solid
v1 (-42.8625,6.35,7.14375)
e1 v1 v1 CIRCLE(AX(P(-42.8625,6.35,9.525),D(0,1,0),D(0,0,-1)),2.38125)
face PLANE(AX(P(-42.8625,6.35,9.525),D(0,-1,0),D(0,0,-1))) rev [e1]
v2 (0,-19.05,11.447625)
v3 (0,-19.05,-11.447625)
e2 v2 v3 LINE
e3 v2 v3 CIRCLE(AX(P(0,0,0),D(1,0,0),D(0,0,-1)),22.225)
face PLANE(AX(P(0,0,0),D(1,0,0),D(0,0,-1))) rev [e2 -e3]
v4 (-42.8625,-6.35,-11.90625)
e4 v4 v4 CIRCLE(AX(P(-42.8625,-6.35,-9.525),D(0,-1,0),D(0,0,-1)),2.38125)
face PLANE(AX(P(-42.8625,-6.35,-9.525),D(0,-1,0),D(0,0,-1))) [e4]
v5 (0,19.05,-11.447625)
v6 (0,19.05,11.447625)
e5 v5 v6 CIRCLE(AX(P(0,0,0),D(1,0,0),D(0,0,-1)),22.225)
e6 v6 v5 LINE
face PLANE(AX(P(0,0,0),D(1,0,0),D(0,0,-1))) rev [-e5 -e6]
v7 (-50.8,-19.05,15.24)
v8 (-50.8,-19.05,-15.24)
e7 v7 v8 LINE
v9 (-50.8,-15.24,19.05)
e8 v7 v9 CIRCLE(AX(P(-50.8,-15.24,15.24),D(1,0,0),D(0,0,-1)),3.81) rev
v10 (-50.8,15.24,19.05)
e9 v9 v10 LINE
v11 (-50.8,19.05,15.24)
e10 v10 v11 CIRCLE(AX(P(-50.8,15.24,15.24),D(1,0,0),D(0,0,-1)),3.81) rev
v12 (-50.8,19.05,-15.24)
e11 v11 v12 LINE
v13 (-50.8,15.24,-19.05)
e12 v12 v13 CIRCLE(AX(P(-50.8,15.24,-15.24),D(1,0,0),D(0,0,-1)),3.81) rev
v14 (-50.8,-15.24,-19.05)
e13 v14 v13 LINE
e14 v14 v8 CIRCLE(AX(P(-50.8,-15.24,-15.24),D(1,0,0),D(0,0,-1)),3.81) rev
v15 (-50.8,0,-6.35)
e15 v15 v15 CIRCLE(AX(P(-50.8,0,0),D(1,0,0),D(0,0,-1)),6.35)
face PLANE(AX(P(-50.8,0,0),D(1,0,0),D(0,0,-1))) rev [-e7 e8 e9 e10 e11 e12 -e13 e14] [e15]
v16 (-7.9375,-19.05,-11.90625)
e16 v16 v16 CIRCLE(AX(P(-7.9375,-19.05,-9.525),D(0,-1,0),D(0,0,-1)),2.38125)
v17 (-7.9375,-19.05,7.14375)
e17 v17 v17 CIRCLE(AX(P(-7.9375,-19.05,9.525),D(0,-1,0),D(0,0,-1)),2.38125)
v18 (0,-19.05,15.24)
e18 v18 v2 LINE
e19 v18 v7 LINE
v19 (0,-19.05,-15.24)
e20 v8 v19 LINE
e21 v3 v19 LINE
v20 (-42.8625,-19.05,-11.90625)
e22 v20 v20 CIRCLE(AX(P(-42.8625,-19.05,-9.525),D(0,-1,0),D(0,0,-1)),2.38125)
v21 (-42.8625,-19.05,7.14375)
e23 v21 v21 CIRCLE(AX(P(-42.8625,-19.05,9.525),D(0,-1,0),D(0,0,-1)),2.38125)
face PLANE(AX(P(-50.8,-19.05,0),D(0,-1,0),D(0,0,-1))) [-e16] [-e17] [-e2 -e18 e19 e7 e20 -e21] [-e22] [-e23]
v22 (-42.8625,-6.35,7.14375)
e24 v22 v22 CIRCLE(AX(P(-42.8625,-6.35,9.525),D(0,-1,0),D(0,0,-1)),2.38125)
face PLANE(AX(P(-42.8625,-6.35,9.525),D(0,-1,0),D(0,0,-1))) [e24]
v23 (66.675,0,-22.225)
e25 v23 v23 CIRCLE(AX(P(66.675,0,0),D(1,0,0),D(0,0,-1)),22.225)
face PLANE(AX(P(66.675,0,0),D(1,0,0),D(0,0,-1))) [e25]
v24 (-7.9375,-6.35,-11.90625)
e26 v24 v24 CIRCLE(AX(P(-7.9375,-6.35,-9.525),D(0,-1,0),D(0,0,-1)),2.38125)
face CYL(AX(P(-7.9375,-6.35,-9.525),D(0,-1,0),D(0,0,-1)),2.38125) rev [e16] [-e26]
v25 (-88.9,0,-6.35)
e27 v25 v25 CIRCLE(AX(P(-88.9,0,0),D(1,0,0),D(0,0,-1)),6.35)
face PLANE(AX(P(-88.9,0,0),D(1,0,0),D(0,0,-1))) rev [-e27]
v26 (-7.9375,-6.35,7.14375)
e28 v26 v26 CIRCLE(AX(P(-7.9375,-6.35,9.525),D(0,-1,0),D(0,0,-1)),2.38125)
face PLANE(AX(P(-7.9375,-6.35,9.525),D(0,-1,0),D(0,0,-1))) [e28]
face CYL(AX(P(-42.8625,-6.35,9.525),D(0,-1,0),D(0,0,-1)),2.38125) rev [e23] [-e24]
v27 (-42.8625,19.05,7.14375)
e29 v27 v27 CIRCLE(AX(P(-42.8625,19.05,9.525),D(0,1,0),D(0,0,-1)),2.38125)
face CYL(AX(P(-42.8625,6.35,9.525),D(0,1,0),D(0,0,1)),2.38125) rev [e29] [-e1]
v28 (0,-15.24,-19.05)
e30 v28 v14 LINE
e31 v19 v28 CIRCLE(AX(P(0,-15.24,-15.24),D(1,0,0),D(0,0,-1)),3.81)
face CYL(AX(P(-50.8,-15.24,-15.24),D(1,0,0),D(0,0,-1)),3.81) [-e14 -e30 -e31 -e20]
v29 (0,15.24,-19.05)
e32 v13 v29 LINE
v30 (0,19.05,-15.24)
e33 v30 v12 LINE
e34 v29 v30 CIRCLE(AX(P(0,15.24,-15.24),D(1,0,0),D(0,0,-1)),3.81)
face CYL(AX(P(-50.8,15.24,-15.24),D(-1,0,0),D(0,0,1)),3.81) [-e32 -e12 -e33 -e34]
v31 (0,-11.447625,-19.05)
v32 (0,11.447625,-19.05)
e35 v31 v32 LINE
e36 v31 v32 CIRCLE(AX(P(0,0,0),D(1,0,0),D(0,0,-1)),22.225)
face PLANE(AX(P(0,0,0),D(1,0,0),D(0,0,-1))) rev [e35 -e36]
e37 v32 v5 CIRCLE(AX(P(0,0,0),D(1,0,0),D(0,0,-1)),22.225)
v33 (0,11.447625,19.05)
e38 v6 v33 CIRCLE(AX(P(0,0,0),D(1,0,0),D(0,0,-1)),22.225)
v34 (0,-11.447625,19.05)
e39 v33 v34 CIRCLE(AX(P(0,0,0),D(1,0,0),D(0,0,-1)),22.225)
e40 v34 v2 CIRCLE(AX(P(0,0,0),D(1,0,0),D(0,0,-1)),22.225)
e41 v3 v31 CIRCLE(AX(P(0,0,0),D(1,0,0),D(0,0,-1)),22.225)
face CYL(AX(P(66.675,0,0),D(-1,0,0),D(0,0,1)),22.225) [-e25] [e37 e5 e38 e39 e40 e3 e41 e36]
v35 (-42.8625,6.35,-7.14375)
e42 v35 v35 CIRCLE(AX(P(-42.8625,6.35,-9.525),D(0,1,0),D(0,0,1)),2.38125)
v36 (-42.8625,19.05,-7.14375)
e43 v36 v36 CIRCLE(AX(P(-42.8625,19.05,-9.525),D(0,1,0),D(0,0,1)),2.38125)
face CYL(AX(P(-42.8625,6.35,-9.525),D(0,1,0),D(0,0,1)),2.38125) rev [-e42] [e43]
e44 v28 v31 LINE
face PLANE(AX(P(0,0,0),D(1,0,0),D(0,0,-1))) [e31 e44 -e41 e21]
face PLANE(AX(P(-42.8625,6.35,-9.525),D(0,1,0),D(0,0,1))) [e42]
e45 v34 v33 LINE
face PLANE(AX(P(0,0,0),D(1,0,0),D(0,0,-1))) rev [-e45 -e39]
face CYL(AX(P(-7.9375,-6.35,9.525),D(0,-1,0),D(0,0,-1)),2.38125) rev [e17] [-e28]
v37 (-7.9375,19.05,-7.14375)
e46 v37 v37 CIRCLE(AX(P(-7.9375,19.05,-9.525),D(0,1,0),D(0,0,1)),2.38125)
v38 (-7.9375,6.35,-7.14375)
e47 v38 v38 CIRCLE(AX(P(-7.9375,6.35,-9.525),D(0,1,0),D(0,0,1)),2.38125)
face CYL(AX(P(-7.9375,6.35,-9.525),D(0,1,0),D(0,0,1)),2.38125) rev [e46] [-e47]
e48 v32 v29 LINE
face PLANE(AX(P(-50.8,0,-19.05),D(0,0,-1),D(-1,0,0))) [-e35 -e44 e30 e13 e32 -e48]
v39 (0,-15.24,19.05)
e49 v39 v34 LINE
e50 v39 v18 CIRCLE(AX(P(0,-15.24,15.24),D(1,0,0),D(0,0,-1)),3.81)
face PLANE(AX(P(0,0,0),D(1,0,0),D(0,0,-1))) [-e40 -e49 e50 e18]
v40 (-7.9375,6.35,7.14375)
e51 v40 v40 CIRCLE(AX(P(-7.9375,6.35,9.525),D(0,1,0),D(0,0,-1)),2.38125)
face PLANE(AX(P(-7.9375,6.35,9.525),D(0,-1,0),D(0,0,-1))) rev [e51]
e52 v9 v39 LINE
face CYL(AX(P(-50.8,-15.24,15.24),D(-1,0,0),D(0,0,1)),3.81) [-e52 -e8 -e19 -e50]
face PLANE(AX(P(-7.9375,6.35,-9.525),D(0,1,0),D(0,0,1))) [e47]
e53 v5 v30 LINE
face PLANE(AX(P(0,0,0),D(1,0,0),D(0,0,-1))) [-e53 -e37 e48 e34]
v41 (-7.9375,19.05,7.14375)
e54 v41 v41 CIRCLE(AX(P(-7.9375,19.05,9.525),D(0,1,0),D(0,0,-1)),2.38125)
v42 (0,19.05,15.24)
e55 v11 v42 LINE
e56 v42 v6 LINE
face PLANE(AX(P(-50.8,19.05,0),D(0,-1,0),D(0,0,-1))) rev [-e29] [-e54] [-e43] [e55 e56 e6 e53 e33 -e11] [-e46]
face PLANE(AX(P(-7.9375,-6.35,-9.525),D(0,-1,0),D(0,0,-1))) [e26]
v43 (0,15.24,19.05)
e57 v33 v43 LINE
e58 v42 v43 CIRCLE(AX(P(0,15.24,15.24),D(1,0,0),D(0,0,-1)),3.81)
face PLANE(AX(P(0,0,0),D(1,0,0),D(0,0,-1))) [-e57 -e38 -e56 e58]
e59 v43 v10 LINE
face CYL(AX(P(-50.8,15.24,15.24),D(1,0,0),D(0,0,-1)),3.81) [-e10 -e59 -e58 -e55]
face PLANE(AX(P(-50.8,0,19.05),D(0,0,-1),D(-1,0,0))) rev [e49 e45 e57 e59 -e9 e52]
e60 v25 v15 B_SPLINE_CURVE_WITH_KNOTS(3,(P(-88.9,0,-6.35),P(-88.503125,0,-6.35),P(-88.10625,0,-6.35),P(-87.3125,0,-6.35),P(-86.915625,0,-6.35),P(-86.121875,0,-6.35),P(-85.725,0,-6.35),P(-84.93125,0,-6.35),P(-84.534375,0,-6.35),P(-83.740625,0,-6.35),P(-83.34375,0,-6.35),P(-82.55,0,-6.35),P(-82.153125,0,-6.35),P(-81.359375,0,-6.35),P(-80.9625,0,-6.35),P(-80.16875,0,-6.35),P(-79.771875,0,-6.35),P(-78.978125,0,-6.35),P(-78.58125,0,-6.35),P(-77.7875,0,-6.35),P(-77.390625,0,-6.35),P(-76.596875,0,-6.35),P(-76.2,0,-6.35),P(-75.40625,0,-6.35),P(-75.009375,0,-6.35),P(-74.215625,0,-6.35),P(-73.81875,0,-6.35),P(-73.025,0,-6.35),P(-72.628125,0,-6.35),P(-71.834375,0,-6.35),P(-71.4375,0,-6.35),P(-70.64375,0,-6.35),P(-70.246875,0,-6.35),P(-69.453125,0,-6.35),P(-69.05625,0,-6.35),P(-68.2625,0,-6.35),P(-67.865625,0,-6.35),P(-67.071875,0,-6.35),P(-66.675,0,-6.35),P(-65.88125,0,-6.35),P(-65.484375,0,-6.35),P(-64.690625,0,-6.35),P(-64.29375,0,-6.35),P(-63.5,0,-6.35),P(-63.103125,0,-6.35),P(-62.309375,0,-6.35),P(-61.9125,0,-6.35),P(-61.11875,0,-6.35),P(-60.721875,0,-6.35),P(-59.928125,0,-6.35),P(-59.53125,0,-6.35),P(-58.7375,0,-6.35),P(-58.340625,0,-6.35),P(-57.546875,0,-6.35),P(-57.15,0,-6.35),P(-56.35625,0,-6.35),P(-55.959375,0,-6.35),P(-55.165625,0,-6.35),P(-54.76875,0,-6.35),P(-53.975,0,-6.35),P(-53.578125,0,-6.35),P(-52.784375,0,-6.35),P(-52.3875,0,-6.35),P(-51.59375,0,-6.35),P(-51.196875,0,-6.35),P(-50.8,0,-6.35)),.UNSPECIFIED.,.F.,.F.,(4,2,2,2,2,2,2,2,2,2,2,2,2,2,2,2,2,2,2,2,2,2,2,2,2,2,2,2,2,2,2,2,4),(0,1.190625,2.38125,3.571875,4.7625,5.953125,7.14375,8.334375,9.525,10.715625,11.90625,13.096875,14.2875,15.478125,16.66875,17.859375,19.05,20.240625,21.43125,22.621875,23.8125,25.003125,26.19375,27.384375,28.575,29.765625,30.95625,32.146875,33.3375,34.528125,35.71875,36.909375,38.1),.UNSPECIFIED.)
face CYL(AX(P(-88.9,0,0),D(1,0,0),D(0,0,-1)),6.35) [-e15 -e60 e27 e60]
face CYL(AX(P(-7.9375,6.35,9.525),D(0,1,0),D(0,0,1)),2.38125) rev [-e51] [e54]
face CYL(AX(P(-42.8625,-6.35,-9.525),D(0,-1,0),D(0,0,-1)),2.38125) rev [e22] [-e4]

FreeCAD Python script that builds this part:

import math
import FreeCAD as App
import Part
import Sketcher
Q = App.Units.Quantity


def edges_at(feature, points):
    """Names of the edges that pass closest to the given points."""
    edges = feature.Shape.Edges
    near = lambda p: min(range(len(edges)), key=lambda i: edges[i].distToShape(Part.Vertex(*p))[0])
    return sorted({f"Edge{near(p) + 1}" for p in points})

doc = App.newDocument("Part")
params = doc.addObject("Spreadsheet::Sheet", "Params")
for row, (alias, value) in enumerate([
    ("sketch1_radius", "0.875 in"),
    ("pad1_length", "2.625 in"),
    ("sketch2_width", "1.5 in"),
    ("pad2_length", "2 in"),
    ("sketch3_diameter", "0.5 in"),
    ("pad3_length", "1.5 in"),
    ("sketch4_diameter", "0.1875 in"),
    ("pocket1_length", "0.5 in"),
    ("sketch5_diameter", "0.1875 in"),
    ("pocket2_length", "0.5 in"),
    ("fillet_radius", "0.15 in"),
], start=1):
    params.set(f"A{row}", alias)
    params.set(f"B{row}", "=" + value)
    params.setAlias(f"B{row}", alias)

body = doc.addObject("PartDesign::Body", "Body")

# Sketch on YZ plane
sketch1 = body.newObject("Sketcher::SketchObject", "Sketch")
sketch1.AttachmentSupport = (doc.getObject("YZ_Plane"), [""])
sketch1.MapMode = "FlatFace"
sketch1.addGeometry([
    Part.ArcOfCircle(Part.Circle(App.Vector(0, 0, 0), App.Vector(0, 0, 1), 22.225), math.radians(-90), math.radians(-58.997281)),  # 0
    Part.ArcOfCircle(Part.Circle(App.Vector(0, 0, 0), App.Vector(0, 0, 1), 22.225), math.radians(-58.997281), math.radians(-31.002719)),  # 1
    Part.ArcOfCircle(Part.Circle(App.Vector(0, 0, 0), App.Vector(0, 0, 1), 22.225), math.radians(-31.002719), math.radians(31.002719)),  # 2
    Part.ArcOfCircle(Part.Circle(App.Vector(0, 0, 0), App.Vector(0, 0, 1), 22.225), math.radians(31.002719), math.radians(58.997281)),  # 3
    Part.ArcOfCircle(Part.Circle(App.Vector(0, 0, 0), App.Vector(0, 0, 1), 22.225), math.radians(58.997281), math.radians(121.002719)),  # 4
    Part.ArcOfCircle(Part.Circle(App.Vector(0, 0, 0), App.Vector(0, 0, 1), 22.225), math.radians(121.002719), math.radians(148.997281)),  # 5
    Part.ArcOfCircle(Part.Circle(App.Vector(0, 0, 0), App.Vector(0, 0, 1), 22.225), math.radians(148.997281), math.radians(211.002719)),  # 6
    Part.ArcOfCircle(Part.Circle(App.Vector(0, 0, 0), App.Vector(0, 0, 1), 22.225), math.radians(-148.997281), math.radians(-121.002719)),  # 7
    Part.ArcOfCircle(Part.Circle(App.Vector(0, 0, 0), App.Vector(0, 0, 1), 22.225), math.radians(-121.002719), math.radians(-90)),  # 8
], False)
sketch1.addConstraint([
    Sketcher.Constraint("Tangent", 0, 2, 1, 1),
    Sketcher.Constraint("Tangent", 1, 2, 2, 1),
    Sketcher.Constraint("Tangent", 2, 2, 3, 1),
    Sketcher.Constraint("Tangent", 3, 2, 4, 1),
    Sketcher.Constraint("Tangent", 4, 2, 5, 1),
    Sketcher.Constraint("Tangent", 5, 2, 6, 1),
    Sketcher.Constraint("Tangent", 6, 2, 7, 1),
    Sketcher.Constraint("Tangent", 7, 2, 8, 1),
    Sketcher.Constraint("Tangent", 8, 2, 0, 1),
    Sketcher.Constraint("Coincident", 0, 3, -1, 1),
    Sketcher.Constraint("Coincident", 2, 3, -1, 1),
    Sketcher.Constraint("Coincident", 4, 3, -1, 1),
    Sketcher.Constraint("Coincident", 6, 3, -1, 1),
    Sketcher.Constraint("PointOnObject", 8, 2, -2),
    Sketcher.Constraint("Horizontal", 3, 2, 4, 2),
    Sketcher.Constraint("Horizontal", 2, 2, 5, 2),
    Sketcher.Constraint("Horizontal", 1, 2, 6, 2),
    Sketcher.Constraint("Horizontal", 0, 2, 7, 2),
    Sketcher.Constraint("Vertical", 1, 2, 2, 2),
    Sketcher.Constraint("Vertical", 0, 2, 3, 2),
    Sketcher.Constraint("Radius", 0, Q("0.875 in")),
    Sketcher.Constraint("DistanceY", 0, 2, -1, 1, Q("0.75 in")),
    Sketcher.Constraint("DistanceX", -1, 1, 1, 2, Q("0.75 in")),
])
sketch1.setExpression("Constraints[20]", "Params.sketch1_radius")
pad1 = body.newObject("PartDesign::Pad", "Pad")
pad1.Profile = sketch1
pad1.setExpression("Length", "Params.pad1_length")

# Sketch on YZ plane
sketch2 = body.newObject("Sketcher::SketchObject", "Sketch001")
sketch2.AttachmentSupport = (doc.getObject("YZ_Plane"), [""])
sketch2.MapMode = "FlatFace"
sketch2.addGeometry([
    Part.LineSegment(App.Vector(19.05, 19.05, 0), App.Vector(-19.05, 19.05, 0)),
    Part.LineSegment(App.Vector(-19.05, 19.05, 0), App.Vector(-19.05, -19.05, 0)),
    Part.LineSegment(App.Vector(-19.05, -19.05, 0), App.Vector(19.05, -19.05, 0)),
    Part.LineSegment(App.Vector(19.05, -19.05, 0), App.Vector(19.05, 19.05, 0)),
], False)
sketch2.addConstraint([
    Sketcher.Constraint("Coincident", 0, 2, 1, 1),
    Sketcher.Constraint("Coincident", 1, 2, 2, 1),
    Sketcher.Constraint("Coincident", 2, 2, 3, 1),
    Sketcher.Constraint("Coincident", 3, 2, 0, 1),
    Sketcher.Constraint("Horizontal", 0),
    Sketcher.Constraint("Vertical", 1),
    Sketcher.Constraint("Horizontal", 2),
    Sketcher.Constraint("Vertical", 3),
    Sketcher.Constraint("Symmetric", 0, 2, 2, 2, -1, 1),
    Sketcher.Constraint("Equal", 2, 1),
    Sketcher.Constraint("DistanceX", 0, 2, 0, 1, Q("1.5 in")),
])
sketch2.setExpression("Constraints[10]", "Params.sketch2_width")
pad2 = body.newObject("PartDesign::Pad", "Pad001")
pad2.Profile = sketch2
pad2.setExpression("Length", "Params.pad2_length")
pad2.Reversed = True

# Sketch on YZ plane
sketch3 = body.newObject("Sketcher::SketchObject", "Sketch002")
sketch3.AttachmentSupport = (doc.getObject("YZ_Plane"), [""])
sketch3.MapMode = "FlatFace"
sketch3.AttachmentOffset = App.Placement(App.Vector(0, 0, -2 * 25.4), App.Rotation())
sketch3.addGeometry(Part.Circle(App.Vector(0, 0, 0), App.Vector(0, 0, 1), 6.35), False)
sketch3.addConstraint([
    Sketcher.Constraint("Coincident", 0, 3, -1, 1),
    Sketcher.Constraint("Diameter", 0, Q("0.5 in")),
])
sketch3.setExpression("Constraints[1]", "Params.sketch3_diameter")
pad3 = body.newObject("PartDesign::Pad", "Pad002")
pad3.Profile = sketch3
pad3.setExpression("Length", "Params.pad3_length")
pad3.Reversed = True

# Sketch on XZ plane
sketch4 = body.newObject("Sketcher::SketchObject", "Sketch003")
sketch4.AttachmentSupport = (doc.getObject("XZ_Plane"), [""])
sketch4.MapMode = "FlatFace"
sketch4.AttachmentOffset = App.Placement(App.Vector(0, 0, -0.75 * 25.4), App.Rotation())
sketch4.addGeometry([
    Part.Circle(App.Vector(-42.8625, -9.525, 0), App.Vector(0, 0, 1), 2.38125),
    Part.Circle(App.Vector(-7.9375, -9.525, 0), App.Vector(0, 0, 1), 2.38125),
    Part.Circle(App.Vector(-7.9375, 9.525, 0), App.Vector(0, 0, 1), 2.38125),
    Part.Circle(App.Vector(-42.8625, 9.525, 0), App.Vector(0, 0, 1), 2.38125),
], False)
sketch4.addConstraint([
    Sketcher.Constraint("Equal", 0, 1),
    Sketcher.Constraint("Equal", 1, 2),
    Sketcher.Constraint("Equal", 2, 3),
    Sketcher.Constraint("Symmetric", 1, 3, 2, 3, -1),
    Sketcher.Constraint("Symmetric", 0, 3, 3, 3, -1),
    Sketcher.Constraint("Horizontal", 0, 3, 1, 3),
    Sketcher.Constraint("Diameter", 0, Q("0.1875 in")),
    Sketcher.Constraint("DistanceY", 1, 3, 2, 3, Q("0.75 in")),
    Sketcher.Constraint("DistanceX", 0, 3, -1, 1, Q("1.6875 in")),
    Sketcher.Constraint("DistanceX", 1, 3, -1, 1, Q("0.3125 in")),
])
sketch4.setExpression("Constraints[6]", "Params.sketch4_diameter")
pocket1 = body.newObject("PartDesign::Pocket", "Pocket")
pocket1.Profile = sketch4
pocket1.setExpression("Length", "Params.pocket1_length")
pocket1.Reversed = True

# Sketch on XZ plane
sketch5 = body.newObject("Sketcher::SketchObject", "Sketch004")
sketch5.AttachmentSupport = (doc.getObject("XZ_Plane"), [""])
sketch5.MapMode = "FlatFace"
sketch5.AttachmentOffset = App.Placement(App.Vector(0, 0, 0.25 * 25.4), App.Rotation())
sketch5.addGeometry([
    Part.Circle(App.Vector(-42.8625, -9.525, 0), App.Vector(0, 0, 1), 2.38125),
    Part.Circle(App.Vector(-7.9375, -9.525, 0), App.Vector(0, 0, 1), 2.38125),
    Part.Circle(App.Vector(-7.9375, 9.525, 0), App.Vector(0, 0, 1), 2.38125),
    Part.Circle(App.Vector(-42.8625, 9.525, 0), App.Vector(0, 0, 1), 2.38125),
], False)
sketch5.addConstraint([
    Sketcher.Constraint("Equal", 0, 1),
    Sketcher.Constraint("Equal", 1, 2),
    Sketcher.Constraint("Equal", 2, 3),
    Sketcher.Constraint("Symmetric", 1, 3, 2, 3, -1),
    Sketcher.Constraint("Symmetric", 0, 3, 3, 3, -1),
    Sketcher.Constraint("Horizontal", 0, 3, 1, 3),
    Sketcher.Constraint("Diameter", 0, Q("0.1875 in")),
    Sketcher.Constraint("DistanceY", 1, 3, 2, 3, Q("0.75 in")),
    Sketcher.Constraint("DistanceX", 0, 3, -1, 1, Q("1.6875 in")),
    Sketcher.Constraint("DistanceX", 1, 3, -1, 1, Q("0.3125 in")),
])
sketch5.setExpression("Constraints[6]", "Params.sketch5_diameter")
pocket2 = body.newObject("PartDesign::Pocket", "Pocket001")
pocket2.Profile = sketch5
pocket2.setExpression("Length", "Params.pocket2_length")
pocket2.Reversed = True
doc.recompute()

fillet = body.newObject("PartDesign::Fillet", "Fillet")
fillet.Base = (pocket2, edges_at(pocket2, [
    (-25.4, 19.05, 19.05),
    (-25.4, 19.05, -19.05),
    (-25.4, -19.05, -19.05),
    (-25.4, -19.05, 19.05),
]))
fillet.setExpression("Radius", "Params.fillet_radius")

doc.recompute()
